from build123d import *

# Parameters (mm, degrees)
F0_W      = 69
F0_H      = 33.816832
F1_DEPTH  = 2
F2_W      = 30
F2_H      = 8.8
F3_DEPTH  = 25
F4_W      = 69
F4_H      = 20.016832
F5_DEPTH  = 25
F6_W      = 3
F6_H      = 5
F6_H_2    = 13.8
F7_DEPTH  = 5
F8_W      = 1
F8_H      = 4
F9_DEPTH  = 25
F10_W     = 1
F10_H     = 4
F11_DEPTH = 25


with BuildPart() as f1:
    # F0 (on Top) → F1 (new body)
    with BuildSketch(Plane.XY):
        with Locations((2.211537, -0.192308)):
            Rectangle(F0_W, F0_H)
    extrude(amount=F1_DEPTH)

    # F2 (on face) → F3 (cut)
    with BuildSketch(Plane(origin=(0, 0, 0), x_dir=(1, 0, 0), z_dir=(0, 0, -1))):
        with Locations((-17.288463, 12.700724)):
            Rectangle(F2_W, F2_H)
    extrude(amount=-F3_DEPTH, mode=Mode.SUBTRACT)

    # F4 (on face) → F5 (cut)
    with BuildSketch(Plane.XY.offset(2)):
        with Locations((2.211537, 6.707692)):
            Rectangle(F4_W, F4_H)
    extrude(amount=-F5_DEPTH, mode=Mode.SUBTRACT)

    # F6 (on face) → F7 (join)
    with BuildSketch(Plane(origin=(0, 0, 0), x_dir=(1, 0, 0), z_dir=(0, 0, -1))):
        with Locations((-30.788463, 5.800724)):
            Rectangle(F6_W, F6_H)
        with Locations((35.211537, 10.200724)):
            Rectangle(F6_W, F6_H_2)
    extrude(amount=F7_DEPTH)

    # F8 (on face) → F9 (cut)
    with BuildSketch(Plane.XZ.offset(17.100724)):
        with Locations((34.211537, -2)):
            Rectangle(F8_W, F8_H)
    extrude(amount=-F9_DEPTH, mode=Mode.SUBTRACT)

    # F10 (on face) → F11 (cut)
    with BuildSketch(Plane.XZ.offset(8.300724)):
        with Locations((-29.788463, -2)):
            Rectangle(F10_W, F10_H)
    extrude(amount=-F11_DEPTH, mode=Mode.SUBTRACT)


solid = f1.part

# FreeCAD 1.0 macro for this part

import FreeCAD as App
import Part
import Sketcher

V = App.Vector


def add_polygon(sketch, points):
    """Adds a closed chain of lines whose ends are joined by coincident constraints."""
    first, n = sketch.GeometryCount, len(points)
    for a, b in zip(points, points[1:] + points[:1]):
        sketch.addGeometry(Part.LineSegment(App.Vector(*a, 0), App.Vector(*b, 0)), False)
    for i in range(n):
        sketch.addConstraint(Sketcher.Constraint("Coincident", first + i, 2, first + (i + 1) % n, 1))

doc = App.newDocument("Part")
body = doc.addObject("PartDesign::Body", "Body")

# Sketch on XY plane
sketch1 = body.newObject("Sketcher::SketchObject", "Sketch")
sketch1.AttachmentSupport = (doc.getObject("XY_Plane"), [""])
sketch1.MapMode = "FlatFace"
add_polygon(sketch1, [(-32.288463, 16.716108), (-32.288463, -17.100724), (36.711537, -17.100724), (36.711537, 16.716108)])  # lines 0-3
sketch1.addConstraint([
    Sketcher.Constraint("Vertical", 0),
    Sketcher.Constraint("Horizontal", 1),
    Sketcher.Constraint("Vertical", 2),
    Sketcher.Constraint("Horizontal", 3),
    Sketcher.Constraint("DistanceX", 1, 1, 1, 2, 69.0),
    Sketcher.Constraint("DistanceY", 0, 2, 0, 1, 33.816832),
    Sketcher.Constraint("DistanceX", 0, 2, -1, 1, 32.288463),
    Sketcher.Constraint("DistanceY", 0, 2, -1, 1, 17.100724),
])
pad1 = body.newObject("PartDesign::Pad", "Pad")
pad1.Profile = sketch1
pad1.Length = 2

# Sketch on XY plane
sketch2 = body.newObject("Sketcher::SketchObject", "Sketch001")
sketch2.AttachmentSupport = (doc.getObject("XY_Plane"), [""])
sketch2.MapMode = "FlatFace"
add_polygon(sketch2, [(-32.288463, -17.100724), (-32.288463, -8.300724), (-2.288463, -8.300724), (-2.288463, -17.100724)])  # lines 0-3
sketch2.addConstraint([
    Sketcher.Constraint("Vertical", 0),
    Sketcher.Constraint("Horizontal", 1),
    Sketcher.Constraint("Vertical", 2),
    Sketcher.Constraint("Horizontal", 3),
    Sketcher.Constraint("DistanceX", 1, 1, 1, 2, 30.0),
    Sketcher.Constraint("DistanceY", 0, 1, 0, 2, 8.8),
    Sketcher.Constraint("DistanceX", 0, 2, -1, 1, 32.288463),
    Sketcher.Constraint("DistanceY", 0, 2, -1, 1, 8.300724),
])
pocket1 = body.newObject("PartDesign::Pocket", "Pocket")
pocket1.Profile = sketch2
pocket1.Length = 25
pocket1.Reversed = True

# Sketch on XY plane
sketch3 = body.newObject("Sketcher::SketchObject", "Sketch002")
sketch3.AttachmentSupport = (doc.getObject("XY_Plane"), [""])
sketch3.MapMode = "FlatFace"
sketch3.AttachmentOffset = App.Placement(V(0, 0, 2), App.Rotation())
add_polygon(sketch3, [(-32.288463, 16.716108), (-32.288463, -3.300724), (36.711537, -3.300724), (36.711537, 16.716108)])  # lines 0-3
sketch3.addConstraint([
    Sketcher.Constraint("Vertical", 0),
    Sketcher.Constraint("Horizontal", 1),
    Sketcher.Constraint("Vertical", 2),
    Sketcher.Constraint("Horizontal", 3),
    Sketcher.Constraint("DistanceX", 1, 1, 1, 2, 69.0),
    Sketcher.Constraint("DistanceY", 0, 2, 0, 1, 20.016832),
    Sketcher.Constraint("DistanceX", 0, 2, -1, 1, 32.288463),
    Sketcher.Constraint("DistanceY", 0, 2, -1, 1, 3.300724),
])
pocket2 = body.newObject("PartDesign::Pocket", "Pocket001")
pocket2.Profile = sketch3
pocket2.Length = 25

# Sketch on XY plane
sketch4 = body.newObject("Sketcher::SketchObject", "Sketch003")
sketch4.AttachmentSupport = (doc.getObject("XY_Plane"), [""])
sketch4.MapMode = "FlatFace"
add_polygon(sketch4, [(-32.288463, -8.300724), (-32.288463, -3.300724), (-29.288463, -3.300724), (-29.288463, -8.300724)])  # lines 0-3
add_polygon(sketch4, [(33.711537, -17.100724), (33.711537, -3.300724), (36.711537, -3.300724), (36.711537, -17.100724)])  # lines 4-7
sketch4.addConstraint([
    Sketcher.Constraint("Vertical", 0),
    Sketcher.Constraint("Horizontal", 1),
    Sketcher.Constraint("Vertical", 2),
    Sketcher.Constraint("Horizontal", 3),
    Sketcher.Constraint("Vertical", 4),
    Sketcher.Constraint("Horizontal", 5),
    Sketcher.Constraint("Vertical", 6),
    Sketcher.Constraint("Horizontal", 7),
    Sketcher.Constraint("Horizontal", 1, 2, 4, 2),
    Sketcher.Constraint("Equal", 3, 5),
    Sketcher.Constraint("DistanceX", 1, 1, 1, 2, 3.0),
    Sketcher.Constraint("DistanceY", 0, 1, 0, 2, 5.0),
    Sketcher.Constraint("DistanceY", 4, 1, 4, 2, 13.8),
    Sketcher.Constraint("DistanceX", 1, 2, 4, 2, 63.0),
    Sketcher.Constraint("DistanceX", 0, 2, -1, 1, 32.288463),
    Sketcher.Constraint("DistanceY", 0, 2, -1, 1, 3.300724),
])
pad2 = body.newObject("PartDesign::Pad", "Pad001")
pad2.Profile = sketch4
pad2.Length = 5
pad2.Reversed = True

# Sketch on XZ plane
sketch5 = body.newObject("Sketcher::SketchObject", "Sketch004")
sketch5.AttachmentSupport = (doc.getObject("XZ_Plane"), [""])
sketch5.MapMode = "FlatFace"
sketch5.AttachmentOffset = App.Placement(V(0, 0, 17.100724), App.Rotation())
add_polygon(sketch5, [(33.711537, 0), (33.711537, -4), (34.711537, -4), (34.711537, 0)])  # lines 0-3
sketch5.addConstraint([
    Sketcher.Constraint("Vertical", 0),
    Sketcher.Constraint("Horizontal", 1),
    Sketcher.Constraint("Vertical", 2),
    Sketcher.Constraint("Horizontal", 3),
    Sketcher.Constraint("PointOnObject", 2, 2, -1),
    Sketcher.Constraint("DistanceX", 1, 1, 1, 2, 1.0),
    Sketcher.Constraint("DistanceY", 0, 2, 0, 1, 4.0),
    Sketcher.Constraint("DistanceX", -1, 1, 0, 2, 33.711537),
])
pocket3 = body.newObject("PartDesign::Pocket", "Pocket002")
pocket3.Profile = sketch5
pocket3.Length = 25

# Sketch on XZ plane
sketch6 = body.newObject("Sketcher::SketchObject", "Sketch005")
sketch6.AttachmentSupport = (doc.getObject("XZ_Plane"), [""])
sketch6.MapMode = "FlatFace"
sketch6.AttachmentOffset = App.Placement(V(0, 0, 8.300724), App.Rotation())
add_polygon(sketch6, [(-30.288463, 0), (-30.288463, -4), (-29.288463, -4), (-29.288463, 0)])  # lines 0-3
sketch6.addConstraint([
    Sketcher.Constraint("Vertical", 0),
    Sketcher.Constraint("Horizontal", 1),
    Sketcher.Constraint("Vertical", 2),
    Sketcher.Constraint("Horizontal", 3),
    Sketcher.Constraint("PointOnObject", 2, 2, -1),
    Sketcher.Constraint("DistanceX", 1, 1, 1, 2, 1.0),
    Sketcher.Constraint("DistanceY", 0, 2, 0, 1, 4.0),
    Sketcher.Constraint("DistanceX", 0, 2, -1, 1, 30.288463),
])
pocket4 = body.newObject("PartDesign::Pocket", "Pocket003")
pocket4.Profile = sketch6
pocket4.Length = 25

doc.recompute()
